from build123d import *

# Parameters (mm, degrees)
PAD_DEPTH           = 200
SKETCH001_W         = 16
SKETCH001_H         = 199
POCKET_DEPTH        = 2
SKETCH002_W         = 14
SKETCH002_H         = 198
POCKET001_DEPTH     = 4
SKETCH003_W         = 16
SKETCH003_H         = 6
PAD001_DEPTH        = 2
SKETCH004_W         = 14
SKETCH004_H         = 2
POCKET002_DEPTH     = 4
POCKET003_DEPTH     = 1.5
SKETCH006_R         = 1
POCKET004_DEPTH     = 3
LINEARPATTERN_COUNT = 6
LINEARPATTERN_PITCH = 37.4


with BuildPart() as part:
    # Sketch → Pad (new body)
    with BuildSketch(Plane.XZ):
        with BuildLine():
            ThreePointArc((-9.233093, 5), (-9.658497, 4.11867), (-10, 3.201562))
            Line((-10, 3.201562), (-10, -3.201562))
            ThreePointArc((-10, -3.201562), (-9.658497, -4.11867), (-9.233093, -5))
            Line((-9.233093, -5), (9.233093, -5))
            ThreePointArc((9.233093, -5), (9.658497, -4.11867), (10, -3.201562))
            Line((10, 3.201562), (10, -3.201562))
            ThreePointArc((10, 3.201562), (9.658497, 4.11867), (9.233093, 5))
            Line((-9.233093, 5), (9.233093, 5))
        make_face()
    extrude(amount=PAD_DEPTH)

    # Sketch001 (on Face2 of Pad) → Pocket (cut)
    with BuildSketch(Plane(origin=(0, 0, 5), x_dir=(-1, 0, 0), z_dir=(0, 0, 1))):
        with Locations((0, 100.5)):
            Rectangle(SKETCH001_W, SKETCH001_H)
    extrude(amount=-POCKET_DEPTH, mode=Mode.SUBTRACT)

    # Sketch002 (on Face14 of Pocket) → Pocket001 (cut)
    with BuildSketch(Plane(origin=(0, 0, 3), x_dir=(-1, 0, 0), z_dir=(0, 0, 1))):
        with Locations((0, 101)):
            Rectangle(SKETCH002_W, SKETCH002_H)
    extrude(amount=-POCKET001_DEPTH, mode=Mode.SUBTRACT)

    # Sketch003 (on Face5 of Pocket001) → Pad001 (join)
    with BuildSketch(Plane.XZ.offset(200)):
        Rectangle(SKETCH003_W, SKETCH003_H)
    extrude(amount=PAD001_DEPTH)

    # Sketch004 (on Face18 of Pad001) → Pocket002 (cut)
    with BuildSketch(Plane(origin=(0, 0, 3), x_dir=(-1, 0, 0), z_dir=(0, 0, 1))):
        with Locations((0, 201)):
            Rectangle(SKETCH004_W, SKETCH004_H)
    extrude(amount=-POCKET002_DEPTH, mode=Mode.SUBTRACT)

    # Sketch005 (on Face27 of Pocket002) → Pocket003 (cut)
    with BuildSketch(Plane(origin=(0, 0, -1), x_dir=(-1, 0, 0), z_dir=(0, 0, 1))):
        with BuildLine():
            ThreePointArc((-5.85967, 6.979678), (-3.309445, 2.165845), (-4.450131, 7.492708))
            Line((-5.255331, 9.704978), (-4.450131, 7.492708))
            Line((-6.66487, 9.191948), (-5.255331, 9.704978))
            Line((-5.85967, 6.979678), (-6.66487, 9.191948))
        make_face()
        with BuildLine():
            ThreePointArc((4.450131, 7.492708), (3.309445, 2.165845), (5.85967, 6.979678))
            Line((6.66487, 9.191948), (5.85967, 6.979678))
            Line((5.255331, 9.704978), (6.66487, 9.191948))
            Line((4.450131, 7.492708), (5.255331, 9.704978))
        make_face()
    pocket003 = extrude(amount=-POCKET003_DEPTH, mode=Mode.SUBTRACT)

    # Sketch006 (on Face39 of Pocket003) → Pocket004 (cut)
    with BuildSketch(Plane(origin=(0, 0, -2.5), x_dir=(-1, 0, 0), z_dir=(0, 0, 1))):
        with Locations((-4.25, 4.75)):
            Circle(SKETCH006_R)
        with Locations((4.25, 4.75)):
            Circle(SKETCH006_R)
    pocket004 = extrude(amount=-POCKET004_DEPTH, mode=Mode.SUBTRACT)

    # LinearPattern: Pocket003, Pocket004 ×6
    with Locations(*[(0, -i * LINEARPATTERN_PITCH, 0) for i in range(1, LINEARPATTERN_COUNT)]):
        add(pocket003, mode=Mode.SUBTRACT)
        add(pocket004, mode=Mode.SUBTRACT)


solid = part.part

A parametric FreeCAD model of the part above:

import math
import FreeCAD as App
import Part
import Sketcher
Q = App.Units.Quantity

doc = App.newDocument("Part")
body = doc.addObject("PartDesign::Body", "Body")

# Sketch on XZ plane
sketch1 = doc.addObject("Sketcher::SketchObject", "Sketch")
body.addObject(sketch1)
sketch1.AttachmentSupport = (doc.XZ_Plane, [""])
sketch1.MapMode = "FlatFace"
sketch1.addGeometry(Part.ArcOfCircle(Part.Circle(App.Vector(0, 0, 0), App.Vector(0, 0, 1), 10.5), math.radians(151.56), math.radians(162.25)), False)
sketch1.addGeometry(Part.LineSegment(App.Vector(-10, 3.2, 0), App.Vector(-10, -3.2, 0)), False)
sketch1.addGeometry(Part.ArcOfCircle(Part.Circle(App.Vector(0, 0, 0), App.Vector(0, 0, 1), 10.5), math.radians(-162.25), math.radians(-151.56)), False)
sketch1.addGeometry(Part.LineSegment(App.Vector(-9.2, -5, 0), App.Vector(9.2, -5, 0)), False)
sketch1.addGeometry(Part.ArcOfCircle(Part.Circle(App.Vector(0, 0, 0), App.Vector(0, 0, 1), 10.5), math.radians(-28.44), math.radians(-17.75)), False)
sketch1.addGeometry(Part.LineSegment(App.Vector(10, -3.2, 0), App.Vector(10, 3.2, 0)), False)
sketch1.addGeometry(Part.ArcOfCircle(Part.Circle(App.Vector(0, 0, 0), App.Vector(0, 0, 1), 10.5), math.radians(17.75), math.radians(28.44)), False)
sketch1.addGeometry(Part.LineSegment(App.Vector(9.2, 5, 0), App.Vector(-9.2, 5, 0)), False)
sketch1.addConstraint(Sketcher.Constraint("Coincident", 0, 2, 1, 1))
sketch1.addConstraint(Sketcher.Constraint("Coincident", 1, 2, 2, 1))
sketch1.addConstraint(Sketcher.Constraint("Coincident", 2, 2, 3, 1))
sketch1.addConstraint(Sketcher.Constraint("Coincident", 3, 2, 4, 1))
sketch1.addConstraint(Sketcher.Constraint("Coincident", 4, 2, 5, 1))
sketch1.addConstraint(Sketcher.Constraint("Coincident", 5, 2, 6, 1))
sketch1.addConstraint(Sketcher.Constraint("Coincident", 6, 2, 7, 1))
sketch1.addConstraint(Sketcher.Constraint("Coincident", 7, 2, 0, 1))
sketch1.addConstraint(Sketcher.Constraint("Vertical", 1))
sketch1.addConstraint(Sketcher.Constraint("Horizontal", 3))
sketch1.addConstraint(Sketcher.Constraint("Vertical", 5))
sketch1.addConstraint(Sketcher.Constraint("Horizontal", 7))
sketch1.addConstraint(Sketcher.Constraint("Equal", 0, 2))
sketch1.addConstraint(Sketcher.Constraint("Equal", 2, 4))
sketch1.addConstraint(Sketcher.Constraint("Equal", 4, 6))
sketch1.addConstraint(Sketcher.Constraint("Symmetric", 0, 3, 4, 3, -1, 1))
sketch1.addConstraint(Sketcher.Constraint("Symmetric", 2, 3, 6, 3, -1, 1))
sketch1.addConstraint(Sketcher.Constraint("Symmetric", 2, 3, 4, 3, -2))
sketch1.addConstraint(Sketcher.Constraint("Horizontal", 1, 2, 4, 2))
sketch1.addConstraint(Sketcher.Constraint("Vertical", 3, 2, 6, 2))
sketch1.addConstraint(Sketcher.Constraint("DistanceX", 0, 2, -1, 1, Q("10 mm")))
sketch1.addConstraint(Sketcher.Constraint("DistanceY", 2, 2, -1, 1, Q("5 mm")))
sketch1.addConstraint(Sketcher.Constraint("Radius", 0, Q("10.499956 mm")))
sketch1.addConstraint(Sketcher.Constraint("DistanceX", 3, 1, 3, 2, Q("18.466186 mm")))
sketch1.addConstraint(Sketcher.Constraint("DistanceY", 1, 2, 1, 1, Q("6.403124 mm")))
pad1 = doc.addObject("PartDesign::Pad", "Pad")
body.addObject(pad1)
pad1.Profile = sketch1
pad1.Length = 200

# Sketch on XY plane
sketch2 = doc.addObject("Sketcher::SketchObject", "Sketch001")
body.addObject(sketch2)
sketch2.AttachmentSupport = (doc.XY_Plane, [""])
sketch2.MapMode = "FlatFace"
sketch2.AttachmentOffset = App.Placement(App.Vector(0, 0, 5), App.Rotation())
sketch2.addGeometry(Part.LineSegment(App.Vector(8, -200, 0), App.Vector(8, -1, 0)), False)
sketch2.addGeometry(Part.LineSegment(App.Vector(8, -1, 0), App.Vector(-8, -1, 0)), False)
sketch2.addGeometry(Part.LineSegment(App.Vector(-8, -1, 0), App.Vector(-8, -200, 0)), False)
sketch2.addGeometry(Part.LineSegment(App.Vector(-8, -200, 0), App.Vector(8, -200, 0)), False)
sketch2.addConstraint(Sketcher.Constraint("Coincident", 0, 2, 1, 1))
sketch2.addConstraint(Sketcher.Constraint("Coincident", 1, 2, 2, 1))
sketch2.addConstraint(Sketcher.Constraint("Coincident", 2, 2, 3, 1))
sketch2.addConstraint(Sketcher.Constraint("Coincident", 3, 2, 0, 1))
sketch2.addConstraint(Sketcher.Constraint("Vertical", 0))
sketch2.addConstraint(Sketcher.Constraint("Horizontal", 1))
sketch2.addConstraint(Sketcher.Constraint("Vertical", 2))
sketch2.addConstraint(Sketcher.Constraint("Horizontal", 3))
sketch2.addConstraint(Sketcher.Constraint("DistanceX", 1, 2, 1, 1, Q("16 mm")))
sketch2.addConstraint(Sketcher.Constraint("DistanceY", 0, 1, 0, 2, Q("199 mm")))
sketch2.addConstraint(Sketcher.Constraint("DistanceX", -1, 1, 0, 2, Q("8 mm")))
sketch2.addConstraint(Sketcher.Constraint("DistanceY", 0, 2, -1, 1, Q("1 mm")))
pocket1 = doc.addObject("PartDesign::Pocket", "Pocket")
body.addObject(pocket1)
pocket1.Profile = sketch2
pocket1.Length = 2

# Sketch on XY plane
sketch3 = doc.addObject("Sketcher::SketchObject", "Sketch002")
body.addObject(sketch3)
sketch3.AttachmentSupport = (doc.XY_Plane, [""])
sketch3.MapMode = "FlatFace"
sketch3.AttachmentOffset = App.Placement(App.Vector(0, 0, 3), App.Rotation())
sketch3.addGeometry(Part.LineSegment(App.Vector(7, -200, 0), App.Vector(7, -2, 0)), False)
sketch3.addGeometry(Part.LineSegment(App.Vector(7, -2, 0), App.Vector(-7, -2, 0)), False)
sketch3.addGeometry(Part.LineSegment(App.Vector(-7, -2, 0), App.Vector(-7, -200, 0)), False)
sketch3.addGeometry(Part.LineSegment(App.Vector(-7, -200, 0), App.Vector(7, -200, 0)), False)
sketch3.addConstraint(Sketcher.Constraint("Coincident", 0, 2, 1, 1))
sketch3.addConstraint(Sketcher.Constraint("Coincident", 1, 2, 2, 1))
sketch3.addConstraint(Sketcher.Constraint("Coincident", 2, 2, 3, 1))
sketch3.addConstraint(Sketcher.Constraint("Coincident", 3, 2, 0, 1))
sketch3.addConstraint(Sketcher.Constraint("Vertical", 0))
sketch3.addConstraint(Sketcher.Constraint("Horizontal", 1))
sketch3.addConstraint(Sketcher.Constraint("Vertical", 2))
sketch3.addConstraint(Sketcher.Constraint("Horizontal", 3))
sketch3.addConstraint(Sketcher.Constraint("DistanceX", 1, 2, 1, 1, Q("14 mm")))
sketch3.addConstraint(Sketcher.Constraint("DistanceY", 0, 1, 0, 2, Q("198 mm")))
sketch3.addConstraint(Sketcher.Constraint("DistanceX", -1, 1, 0, 2, Q("7 mm")))
sketch3.addConstraint(Sketcher.Constraint("DistanceY", 0, 2, -1, 1, Q("2 mm")))
pocket2 = doc.addObject("PartDesign::Pocket", "Pocket001")
body.addObject(pocket2)
pocket2.Profile = sketch3
pocket2.Length = 4

# Sketch on XZ plane
sketch4 = doc.addObject("Sketcher::SketchObject", "Sketch003")
body.addObject(sketch4)
sketch4.AttachmentSupport = (doc.XZ_Plane, [""])
sketch4.MapMode = "FlatFace"
sketch4.AttachmentOffset = App.Placement(App.Vector(0, 0, 200), App.Rotation())
sketch4.addGeometry(Part.LineSegment(App.Vector(-8, 3, 0), App.Vector(-8, -3, 0)), False)
sketch4.addGeometry(Part.LineSegment(App.Vector(-8, -3, 0), App.Vector(8, -3, 0)), False)
sketch4.addGeometry(Part.LineSegment(App.Vector(8, -3, 0), App.Vector(8, 3, 0)), False)
sketch4.addGeometry(Part.LineSegment(App.Vector(8, 3, 0), App.Vector(-8, 3, 0)), False)
sketch4.addConstraint(Sketcher.Constraint("Coincident", 0, 2, 1, 1))
sketch4.addConstraint(Sketcher.Constraint("Coincident", 1, 2, 2, 1))
sketch4.addConstraint(Sketcher.Constraint("Coincident", 2, 2, 3, 1))
sketch4.addConstraint(Sketcher.Constraint("Coincident", 3, 2, 0, 1))
sketch4.addConstraint(Sketcher.Constraint("Vertical", 0))
sketch4.addConstraint(Sketcher.Constraint("Horizontal", 1))
sketch4.addConstraint(Sketcher.Constraint("Vertical", 2))
sketch4.addConstraint(Sketcher.Constraint("Horizontal", 3))
sketch4.addConstraint(Sketcher.Constraint("Symmetric", 0, 2, 2, 2, -1, 1))
sketch4.addConstraint(Sketcher.Constraint("DistanceX", 1, 1, 1, 2, Q("16 mm")))
sketch4.addConstraint(Sketcher.Constraint("DistanceY", 0, 2, 0, 1, Q("6 mm")))
pad2 = doc.addObject("PartDesign::Pad", "Pad001")
body.addObject(pad2)
pad2.Profile = sketch4
pad2.Length = 2

# Sketch on XY plane
sketch5 = doc.addObject("Sketcher::SketchObject", "Sketch004")
body.addObject(sketch5)
sketch5.AttachmentSupport = (doc.XY_Plane, [""])
sketch5.MapMode = "FlatFace"
sketch5.AttachmentOffset = App.Placement(App.Vector(0, 0, 3), App.Rotation())
sketch5.addGeometry(Part.LineSegment(App.Vector(7, -202, 0), App.Vector(7, -200, 0)), False)
sketch5.addGeometry(Part.LineSegment(App.Vector(7, -200, 0), App.Vector(-7, -200, 0)), False)
sketch5.addGeometry(Part.LineSegment(App.Vector(-7, -200, 0), App.Vector(-7, -202, 0)), False)
sketch5.addGeometry(Part.LineSegment(App.Vector(-7, -202, 0), App.Vector(7, -202, 0)), False)
sketch5.addConstraint(Sketcher.Constraint("Coincident", 0, 2, 1, 1))
sketch5.addConstraint(Sketcher.Constraint("Coincident", 1, 2, 2, 1))
sketch5.addConstraint(Sketcher.Constraint("Coincident", 2, 2, 3, 1))
sketch5.addConstraint(Sketcher.Constraint("Coincident", 3, 2, 0, 1))
sketch5.addConstraint(Sketcher.Constraint("Vertical", 0))
sketch5.addConstraint(Sketcher.Constraint("Horizontal", 1))
sketch5.addConstraint(Sketcher.Constraint("Vertical", 2))
sketch5.addConstraint(Sketcher.Constraint("Horizontal", 3))
sketch5.addConstraint(Sketcher.Constraint("DistanceX", 1, 2, 1, 1, Q("14 mm")))
sketch5.addConstraint(Sketcher.Constraint("DistanceY", 0, 1, 0, 2, Q("2 mm")))
sketch5.addConstraint(Sketcher.Constraint("DistanceX", -1, 1, 0, 2, Q("7 mm")))
sketch5.addConstraint(Sketcher.Constraint("DistanceY", 0, 2, -1, 1, Q("200 mm")))
pocket3 = doc.addObject("PartDesign::Pocket", "Pocket002")
body.addObject(pocket3)
pocket3.Profile = sketch5
pocket3.Length = 4

# Sketch on XY plane
sketch6 = doc.addObject("Sketcher::SketchObject", "Sketch005")
body.addObject(sketch6)
sketch6.AttachmentSupport = (doc.XY_Plane, [""])
sketch6.MapMode = "FlatFace"
sketch6.AttachmentOffset = App.Placement(App.Vector(0, 0, -1), App.Rotation())
sketch6.addGeometry(Part.ArcOfCircle(Part.Circle(App.Vector(4.3, -4.7, 0), App.Vector(0, 0, 1), 2.8), math.radians(-54), math.radians(274)), False)
sketch6.addGeometry(Part.LineSegment(App.Vector(4.5, -7.5, 0), App.Vector(5.3, -9.7, 0)), False)
sketch6.addGeometry(Part.LineSegment(App.Vector(5.3, -9.7, 0), App.Vector(6.7, -9.2, 0)), False)
sketch6.addGeometry(Part.LineSegment(App.Vector(6.7, -9.2, 0), App.Vector(5.9, -7, 0)), False)
sketch6.addGeometry(Part.ArcOfCircle(Part.Circle(App.Vector(-4.3, -4.7, 0), App.Vector(0, 0, 1), 2.8), math.radians(-94), math.radians(234)), False)
sketch6.addGeometry(Part.LineSegment(App.Vector(-5.9, -7, 0), App.Vector(-6.7, -9.2, 0)), False)
sketch6.addGeometry(Part.LineSegment(App.Vector(-6.7, -9.2, 0), App.Vector(-5.3, -9.7, 0)), False)
sketch6.addGeometry(Part.LineSegment(App.Vector(-5.3, -9.7, 0), App.Vector(-4.5, -7.5, 0)), False)
sketch6.addConstraint(Sketcher.Constraint("Coincident", 0, 2, 1, 1))
sketch6.addConstraint(Sketcher.Constraint("Coincident", 1, 2, 2, 1))
sketch6.addConstraint(Sketcher.Constraint("Coincident", 2, 2, 3, 1))
sketch6.addConstraint(Sketcher.Constraint("Coincident", 3, 2, 0, 1))
sketch6.addConstraint(Sketcher.Constraint("Coincident", 4, 2, 5, 1))
sketch6.addConstraint(Sketcher.Constraint("Coincident", 5, 2, 6, 1))
sketch6.addConstraint(Sketcher.Constraint("Coincident", 6, 2, 7, 1))
sketch6.addConstraint(Sketcher.Constraint("Coincident", 7, 2, 4, 1))
sketch6.addConstraint(Sketcher.Constraint("Equal", 0, 4))
sketch6.addConstraint(Sketcher.Constraint("Symmetric", 0, 3, 4, 3, -2))
sketch6.addConstraint(Sketcher.Constraint("Symmetric", 2, 2, 5, 2, -2))
sketch6.addConstraint(Sketcher.Constraint("Symmetric", 1, 2, 6, 2, -2))
sketch6.addConstraint(Sketcher.Constraint("Perpendicular", 1, 2))
sketch6.addConstraint(Sketcher.Constraint("Perpendicular", 2, 3))
sketch6.addConstraint(Sketcher.Constraint("Perpendicular", 5, 6))
sketch6.addConstraint(Sketcher.Constraint("Perpendicular", 6, 7))
sketch6.addConstraint(Sketcher.Constraint("Equal", 1, 3))
sketch6.addConstraint(Sketcher.Constraint("Angle", 1, Q("-70.00001 deg")))
sketch6.addConstraint(Sketcher.Constraint("Radius", 0, Q("2.75 mm")))
sketch6.addConstraint(Sketcher.Constraint("Distance", 2, Q("1.5 mm")))
sketch6.addConstraint(Sketcher.Constraint("DistanceX", 4, 3, 0, 3, Q("8.500001 mm")))
sketch6.addConstraint(Sketcher.Constraint("DistanceY", 0, 3, -1, 1, Q("4.75 mm")))
sketch6.addConstraint(Sketcher.Constraint("DistanceX", 4, 2, 1, 2, Q("11.115001 mm")))
pocket4 = doc.addObject("PartDesign::Pocket", "Pocket003")
body.addObject(pocket4)
pocket4.Profile = sketch6
pocket4.Length = 1.5

# Sketch on XY plane
sketch7 = doc.addObject("Sketcher::SketchObject", "Sketch006")
body.addObject(sketch7)
sketch7.AttachmentSupport = (doc.XY_Plane, [""])
sketch7.MapMode = "FlatFace"
sketch7.AttachmentOffset = App.Placement(App.Vector(0, 0, -2.5), App.Rotation())
sketch7.addGeometry(Part.Circle(App.Vector(4.2, -4.8, 0), App.Vector(0, 0, 1), 1), False)
sketch7.addGeometry(Part.Circle(App.Vector(-4.2, -4.8, 0), App.Vector(0, 0, 1), 1), False)
sketch7.addConstraint(Sketcher.Constraint("Equal", 0, 1))
sketch7.addConstraint(Sketcher.Constraint("Symmetric", 0, 3, 1, 3, -2))
sketch7.addConstraint(Sketcher.Constraint("Diameter", 0, Q("2 mm")))
sketch7.addConstraint(Sketcher.Constraint("DistanceX", 1, 3, 0, 3, Q("8.5 mm")))
sketch7.addConstraint(Sketcher.Constraint("DistanceY", 0, 3, -1, 1, Q("4.75 mm")))
pocket5 = doc.addObject("PartDesign::Pocket", "Pocket004")
body.addObject(pocket5)
pocket5.Profile = sketch7
pocket5.Length = 3
doc.recompute()

linearpattern = doc.addObject("PartDesign::LinearPattern", "LinearPattern")
body.addObject(linearpattern)
linearpattern.Originals = [pocket4, pocket5]
linearpattern.Direction = (doc.Y_Axis, [""])
linearpattern.Mode = "offset"
linearpattern.Offset = 37.4
linearpattern.Occurrences = 6
linearpattern.Reversed = True
body.Tip = linearpattern

doc.recompute()
